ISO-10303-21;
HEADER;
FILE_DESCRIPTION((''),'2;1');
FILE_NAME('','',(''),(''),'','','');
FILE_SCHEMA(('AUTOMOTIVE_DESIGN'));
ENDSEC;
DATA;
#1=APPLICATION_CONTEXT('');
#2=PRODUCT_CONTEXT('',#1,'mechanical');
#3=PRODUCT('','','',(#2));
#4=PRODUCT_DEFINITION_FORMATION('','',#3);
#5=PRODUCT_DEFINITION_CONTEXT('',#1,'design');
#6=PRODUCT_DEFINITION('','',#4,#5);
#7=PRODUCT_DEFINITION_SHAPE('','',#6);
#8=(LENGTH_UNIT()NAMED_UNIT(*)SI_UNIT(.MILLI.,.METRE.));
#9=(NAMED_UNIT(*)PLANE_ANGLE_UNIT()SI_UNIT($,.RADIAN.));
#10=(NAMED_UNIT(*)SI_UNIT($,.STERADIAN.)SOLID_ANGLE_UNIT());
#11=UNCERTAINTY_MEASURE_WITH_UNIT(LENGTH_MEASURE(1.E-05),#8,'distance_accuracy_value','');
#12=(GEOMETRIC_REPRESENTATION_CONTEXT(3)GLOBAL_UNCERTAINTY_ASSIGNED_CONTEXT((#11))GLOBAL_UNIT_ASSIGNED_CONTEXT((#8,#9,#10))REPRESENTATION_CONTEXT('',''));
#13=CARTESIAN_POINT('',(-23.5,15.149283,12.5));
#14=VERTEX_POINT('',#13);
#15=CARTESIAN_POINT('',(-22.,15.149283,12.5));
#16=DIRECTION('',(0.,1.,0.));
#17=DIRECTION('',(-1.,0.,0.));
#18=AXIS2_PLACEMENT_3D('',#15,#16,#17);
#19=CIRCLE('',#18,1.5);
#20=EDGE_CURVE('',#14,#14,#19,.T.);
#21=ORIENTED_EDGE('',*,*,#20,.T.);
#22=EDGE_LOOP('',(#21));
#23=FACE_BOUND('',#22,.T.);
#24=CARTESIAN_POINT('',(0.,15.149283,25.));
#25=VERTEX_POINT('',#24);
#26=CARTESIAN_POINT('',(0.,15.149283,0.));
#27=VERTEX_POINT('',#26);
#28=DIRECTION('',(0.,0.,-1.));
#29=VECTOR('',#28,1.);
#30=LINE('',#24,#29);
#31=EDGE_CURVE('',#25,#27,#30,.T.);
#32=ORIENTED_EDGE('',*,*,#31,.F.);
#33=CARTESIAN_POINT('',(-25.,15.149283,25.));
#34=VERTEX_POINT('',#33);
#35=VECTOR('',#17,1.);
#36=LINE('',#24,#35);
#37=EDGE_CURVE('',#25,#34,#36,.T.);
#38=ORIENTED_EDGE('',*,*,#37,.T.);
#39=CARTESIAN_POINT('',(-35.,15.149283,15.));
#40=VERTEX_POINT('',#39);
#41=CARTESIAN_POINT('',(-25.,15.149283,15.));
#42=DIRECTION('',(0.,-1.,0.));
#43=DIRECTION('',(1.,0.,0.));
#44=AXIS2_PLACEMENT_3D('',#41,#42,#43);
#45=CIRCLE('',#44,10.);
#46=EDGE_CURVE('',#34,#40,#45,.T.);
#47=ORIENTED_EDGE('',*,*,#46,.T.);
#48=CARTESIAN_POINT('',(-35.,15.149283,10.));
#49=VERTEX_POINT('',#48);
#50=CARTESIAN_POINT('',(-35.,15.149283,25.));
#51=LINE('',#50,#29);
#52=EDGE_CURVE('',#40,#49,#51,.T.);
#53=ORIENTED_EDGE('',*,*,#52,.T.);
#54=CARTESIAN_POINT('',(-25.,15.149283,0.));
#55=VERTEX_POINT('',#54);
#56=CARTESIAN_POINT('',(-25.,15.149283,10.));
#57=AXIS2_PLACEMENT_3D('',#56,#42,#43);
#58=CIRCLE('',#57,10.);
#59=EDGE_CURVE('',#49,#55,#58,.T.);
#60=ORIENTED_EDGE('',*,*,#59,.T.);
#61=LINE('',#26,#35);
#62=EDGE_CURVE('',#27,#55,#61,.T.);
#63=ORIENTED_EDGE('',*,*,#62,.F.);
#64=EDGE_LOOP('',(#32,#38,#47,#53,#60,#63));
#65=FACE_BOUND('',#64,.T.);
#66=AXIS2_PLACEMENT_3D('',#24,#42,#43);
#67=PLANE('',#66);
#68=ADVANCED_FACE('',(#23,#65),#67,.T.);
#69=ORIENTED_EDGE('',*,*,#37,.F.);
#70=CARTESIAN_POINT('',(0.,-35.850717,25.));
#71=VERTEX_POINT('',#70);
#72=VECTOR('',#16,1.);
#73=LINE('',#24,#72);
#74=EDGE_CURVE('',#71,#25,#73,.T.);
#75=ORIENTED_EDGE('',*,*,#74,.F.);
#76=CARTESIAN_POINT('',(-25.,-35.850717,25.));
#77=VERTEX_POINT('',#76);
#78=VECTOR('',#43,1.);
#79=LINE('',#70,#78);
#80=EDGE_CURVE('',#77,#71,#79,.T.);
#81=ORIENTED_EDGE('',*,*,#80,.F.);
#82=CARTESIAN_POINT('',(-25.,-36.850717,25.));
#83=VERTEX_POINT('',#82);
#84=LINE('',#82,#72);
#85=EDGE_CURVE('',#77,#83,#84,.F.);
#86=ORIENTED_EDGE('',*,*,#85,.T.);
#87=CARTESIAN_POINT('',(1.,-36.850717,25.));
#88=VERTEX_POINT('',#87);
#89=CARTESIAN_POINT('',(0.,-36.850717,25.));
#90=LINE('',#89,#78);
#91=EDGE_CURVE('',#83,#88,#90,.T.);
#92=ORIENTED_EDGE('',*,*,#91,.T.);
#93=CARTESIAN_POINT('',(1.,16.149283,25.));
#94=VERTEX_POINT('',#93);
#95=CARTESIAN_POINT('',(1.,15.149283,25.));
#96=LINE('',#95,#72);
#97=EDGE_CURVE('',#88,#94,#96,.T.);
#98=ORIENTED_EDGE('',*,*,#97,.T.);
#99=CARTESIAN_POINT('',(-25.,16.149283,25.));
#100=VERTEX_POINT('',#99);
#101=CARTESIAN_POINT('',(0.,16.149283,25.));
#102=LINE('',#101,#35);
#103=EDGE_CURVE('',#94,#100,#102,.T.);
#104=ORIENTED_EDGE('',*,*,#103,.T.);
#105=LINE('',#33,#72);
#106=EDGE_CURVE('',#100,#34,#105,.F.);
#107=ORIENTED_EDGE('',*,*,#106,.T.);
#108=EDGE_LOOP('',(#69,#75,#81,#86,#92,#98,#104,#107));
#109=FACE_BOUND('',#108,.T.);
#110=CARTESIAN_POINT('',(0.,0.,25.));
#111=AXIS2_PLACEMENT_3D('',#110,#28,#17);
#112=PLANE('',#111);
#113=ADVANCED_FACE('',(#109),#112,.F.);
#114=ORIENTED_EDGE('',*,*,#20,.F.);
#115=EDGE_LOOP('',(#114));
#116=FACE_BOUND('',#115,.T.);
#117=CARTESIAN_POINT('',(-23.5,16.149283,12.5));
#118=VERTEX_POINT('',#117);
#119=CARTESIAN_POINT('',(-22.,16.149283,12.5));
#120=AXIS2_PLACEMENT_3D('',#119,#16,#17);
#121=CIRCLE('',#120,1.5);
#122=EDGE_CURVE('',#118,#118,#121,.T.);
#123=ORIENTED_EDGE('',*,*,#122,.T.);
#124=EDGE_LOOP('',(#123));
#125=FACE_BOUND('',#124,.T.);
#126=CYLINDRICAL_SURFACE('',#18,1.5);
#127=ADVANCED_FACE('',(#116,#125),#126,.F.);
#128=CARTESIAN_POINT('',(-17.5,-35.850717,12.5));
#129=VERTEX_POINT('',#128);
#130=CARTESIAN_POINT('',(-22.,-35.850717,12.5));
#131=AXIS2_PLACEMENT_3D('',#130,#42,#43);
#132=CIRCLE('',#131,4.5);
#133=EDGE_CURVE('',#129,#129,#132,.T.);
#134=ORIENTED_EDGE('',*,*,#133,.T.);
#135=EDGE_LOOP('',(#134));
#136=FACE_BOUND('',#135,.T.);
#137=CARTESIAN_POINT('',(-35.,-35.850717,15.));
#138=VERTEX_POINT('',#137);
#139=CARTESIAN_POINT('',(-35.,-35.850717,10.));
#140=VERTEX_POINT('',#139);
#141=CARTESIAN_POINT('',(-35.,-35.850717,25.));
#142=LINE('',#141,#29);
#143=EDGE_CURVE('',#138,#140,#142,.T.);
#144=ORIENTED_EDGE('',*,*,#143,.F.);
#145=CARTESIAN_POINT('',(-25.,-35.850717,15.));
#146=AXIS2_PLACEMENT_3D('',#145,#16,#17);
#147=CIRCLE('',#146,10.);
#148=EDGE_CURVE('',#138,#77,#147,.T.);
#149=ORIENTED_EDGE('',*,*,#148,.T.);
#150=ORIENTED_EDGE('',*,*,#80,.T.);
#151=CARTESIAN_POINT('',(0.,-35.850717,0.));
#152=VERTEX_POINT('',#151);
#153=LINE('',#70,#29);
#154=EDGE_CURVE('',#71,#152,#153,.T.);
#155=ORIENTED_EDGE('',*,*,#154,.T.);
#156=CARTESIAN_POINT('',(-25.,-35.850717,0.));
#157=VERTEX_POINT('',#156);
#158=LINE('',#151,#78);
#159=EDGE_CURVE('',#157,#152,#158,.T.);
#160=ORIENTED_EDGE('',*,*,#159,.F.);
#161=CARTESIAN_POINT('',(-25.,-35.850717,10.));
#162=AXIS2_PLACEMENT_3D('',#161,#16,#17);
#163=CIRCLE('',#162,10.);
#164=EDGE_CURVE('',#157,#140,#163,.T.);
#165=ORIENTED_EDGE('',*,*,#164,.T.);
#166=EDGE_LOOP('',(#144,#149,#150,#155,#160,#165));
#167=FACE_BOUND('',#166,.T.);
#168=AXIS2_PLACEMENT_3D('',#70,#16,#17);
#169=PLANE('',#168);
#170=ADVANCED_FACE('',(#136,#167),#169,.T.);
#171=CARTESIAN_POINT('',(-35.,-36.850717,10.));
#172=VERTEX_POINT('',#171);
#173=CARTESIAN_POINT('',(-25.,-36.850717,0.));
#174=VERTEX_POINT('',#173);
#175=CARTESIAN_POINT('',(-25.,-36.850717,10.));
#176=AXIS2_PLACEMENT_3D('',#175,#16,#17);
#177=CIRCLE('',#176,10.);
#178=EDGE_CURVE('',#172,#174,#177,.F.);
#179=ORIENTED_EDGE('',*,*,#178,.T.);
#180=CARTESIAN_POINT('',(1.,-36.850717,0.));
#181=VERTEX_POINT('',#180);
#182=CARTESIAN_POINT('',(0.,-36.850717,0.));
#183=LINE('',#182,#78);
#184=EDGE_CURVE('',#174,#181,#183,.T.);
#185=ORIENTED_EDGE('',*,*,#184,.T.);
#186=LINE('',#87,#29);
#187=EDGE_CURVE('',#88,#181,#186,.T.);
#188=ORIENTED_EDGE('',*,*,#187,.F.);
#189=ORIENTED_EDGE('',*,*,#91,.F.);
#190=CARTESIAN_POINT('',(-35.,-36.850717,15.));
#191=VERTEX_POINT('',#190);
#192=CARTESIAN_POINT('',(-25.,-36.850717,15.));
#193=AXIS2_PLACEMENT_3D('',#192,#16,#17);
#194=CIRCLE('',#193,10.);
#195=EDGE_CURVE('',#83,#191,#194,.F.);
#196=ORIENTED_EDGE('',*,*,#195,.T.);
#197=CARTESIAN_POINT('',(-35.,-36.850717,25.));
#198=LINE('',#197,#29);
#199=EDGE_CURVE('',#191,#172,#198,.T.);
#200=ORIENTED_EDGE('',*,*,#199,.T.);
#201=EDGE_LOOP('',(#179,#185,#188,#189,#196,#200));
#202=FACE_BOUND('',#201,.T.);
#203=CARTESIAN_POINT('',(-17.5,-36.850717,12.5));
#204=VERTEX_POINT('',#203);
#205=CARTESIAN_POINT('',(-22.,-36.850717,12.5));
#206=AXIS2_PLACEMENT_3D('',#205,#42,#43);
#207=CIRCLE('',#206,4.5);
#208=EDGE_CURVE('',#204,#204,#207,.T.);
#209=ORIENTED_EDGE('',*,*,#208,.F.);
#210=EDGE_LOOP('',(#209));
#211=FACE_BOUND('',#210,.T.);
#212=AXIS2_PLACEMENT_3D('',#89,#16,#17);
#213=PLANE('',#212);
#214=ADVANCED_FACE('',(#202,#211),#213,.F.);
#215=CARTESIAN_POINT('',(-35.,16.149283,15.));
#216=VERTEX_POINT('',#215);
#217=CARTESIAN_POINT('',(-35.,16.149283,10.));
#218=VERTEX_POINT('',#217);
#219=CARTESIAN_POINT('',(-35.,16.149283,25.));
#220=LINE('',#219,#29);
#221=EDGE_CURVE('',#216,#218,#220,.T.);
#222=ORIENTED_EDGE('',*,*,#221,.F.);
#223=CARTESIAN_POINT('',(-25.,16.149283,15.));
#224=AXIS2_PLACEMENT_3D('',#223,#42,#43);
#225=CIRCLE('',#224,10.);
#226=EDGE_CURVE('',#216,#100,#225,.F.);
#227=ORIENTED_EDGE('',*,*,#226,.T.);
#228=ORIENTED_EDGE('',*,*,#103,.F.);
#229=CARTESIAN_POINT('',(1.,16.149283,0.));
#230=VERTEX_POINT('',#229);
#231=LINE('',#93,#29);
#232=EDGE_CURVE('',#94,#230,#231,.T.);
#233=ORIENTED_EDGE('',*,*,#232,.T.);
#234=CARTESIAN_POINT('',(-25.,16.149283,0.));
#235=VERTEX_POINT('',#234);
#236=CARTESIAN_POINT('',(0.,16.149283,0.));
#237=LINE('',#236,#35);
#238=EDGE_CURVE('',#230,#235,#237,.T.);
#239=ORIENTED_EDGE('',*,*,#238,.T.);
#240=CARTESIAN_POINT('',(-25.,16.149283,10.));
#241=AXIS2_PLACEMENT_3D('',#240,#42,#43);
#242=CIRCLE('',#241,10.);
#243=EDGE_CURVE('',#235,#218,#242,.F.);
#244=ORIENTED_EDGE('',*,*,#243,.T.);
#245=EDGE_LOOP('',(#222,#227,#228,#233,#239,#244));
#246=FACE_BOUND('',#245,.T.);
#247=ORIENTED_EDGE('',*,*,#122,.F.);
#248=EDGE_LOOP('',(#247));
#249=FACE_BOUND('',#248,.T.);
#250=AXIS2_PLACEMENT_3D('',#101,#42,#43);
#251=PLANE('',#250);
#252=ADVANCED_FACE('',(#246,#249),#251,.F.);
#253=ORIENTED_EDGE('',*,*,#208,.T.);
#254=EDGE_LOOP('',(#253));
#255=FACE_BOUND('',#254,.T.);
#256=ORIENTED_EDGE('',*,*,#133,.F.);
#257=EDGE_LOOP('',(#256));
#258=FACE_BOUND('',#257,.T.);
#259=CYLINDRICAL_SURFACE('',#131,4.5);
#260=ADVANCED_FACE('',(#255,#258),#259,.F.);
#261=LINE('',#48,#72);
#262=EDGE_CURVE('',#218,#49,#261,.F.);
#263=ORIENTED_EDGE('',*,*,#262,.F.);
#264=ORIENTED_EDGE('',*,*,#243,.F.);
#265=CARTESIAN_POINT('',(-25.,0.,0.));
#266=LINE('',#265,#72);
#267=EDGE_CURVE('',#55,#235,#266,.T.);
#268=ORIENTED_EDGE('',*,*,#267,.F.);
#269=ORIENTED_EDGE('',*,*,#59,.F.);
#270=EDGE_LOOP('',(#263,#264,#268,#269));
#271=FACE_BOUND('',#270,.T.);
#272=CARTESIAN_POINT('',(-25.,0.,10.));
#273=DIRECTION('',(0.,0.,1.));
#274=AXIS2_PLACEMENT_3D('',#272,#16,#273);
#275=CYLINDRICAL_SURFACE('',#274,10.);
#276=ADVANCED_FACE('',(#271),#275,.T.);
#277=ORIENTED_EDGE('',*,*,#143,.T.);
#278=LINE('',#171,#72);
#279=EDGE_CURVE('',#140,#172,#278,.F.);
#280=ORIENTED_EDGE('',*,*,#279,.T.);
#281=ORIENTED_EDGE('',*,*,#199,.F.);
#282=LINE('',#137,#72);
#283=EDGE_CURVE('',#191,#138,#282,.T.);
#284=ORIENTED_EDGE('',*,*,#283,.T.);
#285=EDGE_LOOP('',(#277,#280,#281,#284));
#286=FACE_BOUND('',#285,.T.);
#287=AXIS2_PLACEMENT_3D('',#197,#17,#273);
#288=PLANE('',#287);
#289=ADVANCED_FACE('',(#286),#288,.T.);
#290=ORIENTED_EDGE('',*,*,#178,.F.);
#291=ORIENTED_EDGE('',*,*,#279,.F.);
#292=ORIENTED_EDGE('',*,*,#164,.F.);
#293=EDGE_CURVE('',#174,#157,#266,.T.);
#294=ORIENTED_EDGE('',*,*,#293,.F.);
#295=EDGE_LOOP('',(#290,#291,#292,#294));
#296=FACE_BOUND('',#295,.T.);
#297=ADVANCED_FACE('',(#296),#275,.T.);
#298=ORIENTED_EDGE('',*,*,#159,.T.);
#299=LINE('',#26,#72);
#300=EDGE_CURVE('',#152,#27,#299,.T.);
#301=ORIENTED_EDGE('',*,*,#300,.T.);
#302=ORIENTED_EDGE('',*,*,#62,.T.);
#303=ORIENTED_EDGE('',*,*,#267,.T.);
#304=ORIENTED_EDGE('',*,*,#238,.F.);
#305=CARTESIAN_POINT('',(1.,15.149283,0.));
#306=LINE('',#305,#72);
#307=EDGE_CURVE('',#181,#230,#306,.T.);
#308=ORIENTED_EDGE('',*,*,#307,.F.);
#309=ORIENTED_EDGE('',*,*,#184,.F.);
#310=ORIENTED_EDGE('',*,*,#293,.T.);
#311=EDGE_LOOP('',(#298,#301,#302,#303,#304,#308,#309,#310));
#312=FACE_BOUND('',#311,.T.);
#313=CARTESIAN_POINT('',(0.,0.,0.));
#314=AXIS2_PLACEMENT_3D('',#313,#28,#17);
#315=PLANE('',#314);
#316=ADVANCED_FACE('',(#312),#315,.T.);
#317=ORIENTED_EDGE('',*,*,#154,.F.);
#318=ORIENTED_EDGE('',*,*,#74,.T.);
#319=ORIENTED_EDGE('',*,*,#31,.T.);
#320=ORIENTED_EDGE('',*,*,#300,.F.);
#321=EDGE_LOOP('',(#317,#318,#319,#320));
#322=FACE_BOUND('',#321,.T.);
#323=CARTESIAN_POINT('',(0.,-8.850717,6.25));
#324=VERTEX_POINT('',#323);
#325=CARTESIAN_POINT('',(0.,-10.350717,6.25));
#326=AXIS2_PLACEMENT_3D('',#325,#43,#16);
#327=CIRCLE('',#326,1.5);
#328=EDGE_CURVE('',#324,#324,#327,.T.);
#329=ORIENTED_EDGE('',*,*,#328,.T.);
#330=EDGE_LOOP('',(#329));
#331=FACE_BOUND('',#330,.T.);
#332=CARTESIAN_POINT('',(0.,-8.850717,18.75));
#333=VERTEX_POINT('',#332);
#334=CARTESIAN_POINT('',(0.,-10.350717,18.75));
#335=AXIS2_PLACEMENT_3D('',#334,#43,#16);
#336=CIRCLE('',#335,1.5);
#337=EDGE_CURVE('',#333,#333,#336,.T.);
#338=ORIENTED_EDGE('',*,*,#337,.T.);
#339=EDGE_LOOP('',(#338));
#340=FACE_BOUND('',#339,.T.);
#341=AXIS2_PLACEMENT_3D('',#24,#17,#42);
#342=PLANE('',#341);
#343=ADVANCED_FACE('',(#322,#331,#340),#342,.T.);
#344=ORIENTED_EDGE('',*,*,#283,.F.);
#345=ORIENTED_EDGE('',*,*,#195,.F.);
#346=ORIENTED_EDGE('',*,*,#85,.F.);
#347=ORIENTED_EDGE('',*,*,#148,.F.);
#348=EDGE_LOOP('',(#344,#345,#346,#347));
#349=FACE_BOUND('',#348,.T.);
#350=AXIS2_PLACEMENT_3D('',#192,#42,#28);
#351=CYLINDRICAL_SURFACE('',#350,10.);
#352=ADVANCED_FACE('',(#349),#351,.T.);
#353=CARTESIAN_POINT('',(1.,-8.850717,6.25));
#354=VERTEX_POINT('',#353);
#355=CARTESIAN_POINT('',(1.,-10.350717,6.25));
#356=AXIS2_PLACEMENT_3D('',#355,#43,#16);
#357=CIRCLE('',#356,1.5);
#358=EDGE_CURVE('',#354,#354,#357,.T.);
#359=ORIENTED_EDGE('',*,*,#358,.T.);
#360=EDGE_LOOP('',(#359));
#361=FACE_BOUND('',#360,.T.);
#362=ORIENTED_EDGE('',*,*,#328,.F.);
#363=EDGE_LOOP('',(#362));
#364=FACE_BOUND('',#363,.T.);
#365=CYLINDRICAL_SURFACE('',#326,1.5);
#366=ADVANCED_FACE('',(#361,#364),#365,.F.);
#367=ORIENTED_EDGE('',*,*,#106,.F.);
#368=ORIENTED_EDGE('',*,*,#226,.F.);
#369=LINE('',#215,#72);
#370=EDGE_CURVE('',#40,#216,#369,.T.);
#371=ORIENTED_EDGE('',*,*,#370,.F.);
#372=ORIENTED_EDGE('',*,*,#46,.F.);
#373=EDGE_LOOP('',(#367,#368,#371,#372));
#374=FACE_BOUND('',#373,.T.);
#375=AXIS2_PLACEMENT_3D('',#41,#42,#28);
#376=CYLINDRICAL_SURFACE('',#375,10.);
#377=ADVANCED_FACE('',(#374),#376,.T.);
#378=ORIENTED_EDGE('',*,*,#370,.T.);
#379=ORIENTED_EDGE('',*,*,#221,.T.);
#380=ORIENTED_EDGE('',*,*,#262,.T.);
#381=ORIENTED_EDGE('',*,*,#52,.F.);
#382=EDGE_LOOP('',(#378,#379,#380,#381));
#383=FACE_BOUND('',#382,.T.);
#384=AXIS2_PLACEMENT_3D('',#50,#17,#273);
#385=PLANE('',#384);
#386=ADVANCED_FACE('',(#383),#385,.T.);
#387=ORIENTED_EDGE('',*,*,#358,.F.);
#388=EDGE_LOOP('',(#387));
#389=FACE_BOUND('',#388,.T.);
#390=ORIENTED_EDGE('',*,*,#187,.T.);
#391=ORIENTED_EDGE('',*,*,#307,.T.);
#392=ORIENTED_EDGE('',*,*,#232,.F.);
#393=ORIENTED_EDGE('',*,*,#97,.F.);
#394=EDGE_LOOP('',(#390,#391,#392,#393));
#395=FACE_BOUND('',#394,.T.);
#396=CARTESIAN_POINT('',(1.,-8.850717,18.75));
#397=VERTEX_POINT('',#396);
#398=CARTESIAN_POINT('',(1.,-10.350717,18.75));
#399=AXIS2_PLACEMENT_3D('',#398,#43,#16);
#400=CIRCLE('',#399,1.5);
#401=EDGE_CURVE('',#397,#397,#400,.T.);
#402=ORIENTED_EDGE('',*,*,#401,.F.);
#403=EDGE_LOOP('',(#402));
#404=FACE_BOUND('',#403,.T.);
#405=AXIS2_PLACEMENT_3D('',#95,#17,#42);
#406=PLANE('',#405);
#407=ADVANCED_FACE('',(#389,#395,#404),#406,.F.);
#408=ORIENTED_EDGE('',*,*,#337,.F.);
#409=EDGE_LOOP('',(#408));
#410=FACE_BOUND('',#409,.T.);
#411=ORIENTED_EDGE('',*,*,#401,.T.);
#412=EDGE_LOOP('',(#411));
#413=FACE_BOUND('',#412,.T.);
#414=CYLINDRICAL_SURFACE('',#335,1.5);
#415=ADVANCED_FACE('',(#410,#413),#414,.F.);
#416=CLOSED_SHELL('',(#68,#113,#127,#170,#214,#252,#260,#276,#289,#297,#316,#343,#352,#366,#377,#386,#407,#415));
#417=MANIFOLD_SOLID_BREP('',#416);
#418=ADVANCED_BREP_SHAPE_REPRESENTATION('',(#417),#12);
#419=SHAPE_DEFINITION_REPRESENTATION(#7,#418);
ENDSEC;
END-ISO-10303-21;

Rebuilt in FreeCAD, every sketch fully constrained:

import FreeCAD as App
import Part
import Sketcher
Q = App.Units.Quantity


def edges_at(feature, points):
    """Names of the edges that pass closest to the given points."""
    edges = feature.Shape.Edges
    near = lambda p: min(range(len(edges)), key=lambda i: edges[i].distToShape(Part.Vertex(*p))[0])
    return sorted({f"Edge{near(p) + 1}" for p in points})


def add_polygon(sketch, points):
    """Adds a closed chain of lines whose ends are joined by coincident constraints."""
    first, n = sketch.GeometryCount, len(points)
    for a, b in zip(points, points[1:] + points[:1]):
        sketch.addGeometry(Part.LineSegment(App.Vector(*a, 0), App.Vector(*b, 0)), False)
    for i in range(n):
        sketch.addConstraint(Sketcher.Constraint("Coincident", first + i, 2, first + (i + 1) % n, 1))

doc = App.newDocument("Part")
body = doc.addObject("PartDesign::Body", "Body")

# Sketch on XY plane
sketch1 = doc.addObject("Sketcher::SketchObject", "Sketch")
body.addObject(sketch1)
sketch1.AttachmentSupport = (doc.XY_Plane, [""])
sketch1.MapMode = "FlatFace"
add_polygon(sketch1, [(-35, 15.149283), (0, 15.149283), (0, -35.850717), (-35, -35.850717), (-35, -36.850717), (1, -36.850717), (1, 16.149283), (-35, 16.149283)])  # lines 0-7
sketch1.addConstraint([
    Sketcher.Constraint("Horizontal", 0),
    Sketcher.Constraint("Vertical", 1),
    Sketcher.Constraint("Horizontal", 2),
    Sketcher.Constraint("Vertical", 3),
    Sketcher.Constraint("Horizontal", 4),
    Sketcher.Constraint("Vertical", 5),
    Sketcher.Constraint("Horizontal", 6),
    Sketcher.Constraint("Vertical", 7),
    Sketcher.Constraint("PointOnObject", 0, 2, -2),
    Sketcher.Constraint("Vertical", 3, 2, 6, 2),
    Sketcher.Constraint("Equal", 3, 7),
    Sketcher.Constraint("DistanceX", 0, 1, 0, 2, Q("35 mm")),
    Sketcher.Constraint("DistanceX", 4, 1, 4, 2, Q("36 mm")),
    Sketcher.Constraint("DistanceY", 1, 2, 1, 1, Q("51 mm")),
    Sketcher.Constraint("DistanceY", 3, 2, 3, 1, Q("1 mm")),
    Sketcher.Constraint("DistanceY", -1, 1, 0, 2, Q("15.149283 mm")),
])
pad1 = doc.addObject("PartDesign::Pad", "Pad")
body.addObject(pad1)
pad1.Profile = sketch1
pad1.Length = 25

# Sketch on XZ plane
sketch2 = doc.addObject("Sketcher::SketchObject", "Sketch001")
body.addObject(sketch2)
sketch2.AttachmentSupport = (doc.XZ_Plane, [""])
sketch2.MapMode = "FlatFace"
sketch2.AttachmentOffset = App.Placement(App.Vector(0, 0, -16.149283), App.Rotation())
sketch2.addGeometry(Part.Circle(App.Vector(-22, 12.5, 0), App.Vector(0, 0, 1), 1.5), False)
sketch2.addConstraint([
    Sketcher.Constraint("Diameter", 0, Q("3 mm")),
    Sketcher.Constraint("DistanceX", 0, 3, -1, 1, Q("22 mm")),
    Sketcher.Constraint("DistanceY", -1, 1, 0, 3, Q("12.5 mm")),
])
pocket1 = doc.addObject("PartDesign::Pocket", "Pocket")
body.addObject(pocket1)
pocket1.Profile = sketch2
pocket1.Length = 1
pocket1.Reversed = True

# Sketch on XZ plane
sketch3 = doc.addObject("Sketcher::SketchObject", "Sketch002")
body.addObject(sketch3)
sketch3.AttachmentSupport = (doc.XZ_Plane, [""])
sketch3.MapMode = "FlatFace"
sketch3.AttachmentOffset = App.Placement(App.Vector(0, 0, 36.850717), App.Rotation())
sketch3.addGeometry(Part.Circle(App.Vector(-22, 12.5, 0), App.Vector(0, 0, 1), 4.5), False)
sketch3.addConstraint([
    Sketcher.Constraint("Diameter", 0, Q("9 mm")),
    Sketcher.Constraint("DistanceX", 0, 3, -1, 1, Q("22 mm")),
    Sketcher.Constraint("DistanceY", -1, 1, 0, 3, Q("12.5 mm")),
])
pocket2 = doc.addObject("PartDesign::Pocket", "Pocket001")
body.addObject(pocket2)
pocket2.Profile = sketch3
pocket2.Length = 1

# Sketch on YZ plane
sketch4 = doc.addObject("Sketcher::SketchObject", "Sketch003")
body.addObject(sketch4)
sketch4.AttachmentSupport = (doc.YZ_Plane, [""])
sketch4.MapMode = "FlatFace"
sketch4.AttachmentOffset = App.Placement(App.Vector(0, 0, 1), App.Rotation())
sketch4.addGeometry([
    Part.Circle(App.Vector(-10.350717, 6.25, 0), App.Vector(0, 0, 1), 1.5),
    Part.Circle(App.Vector(-10.350717, 18.75, 0), App.Vector(0, 0, 1), 1.5),
], False)
sketch4.addConstraint([
    Sketcher.Constraint("Equal", 0, 1),
    Sketcher.Constraint("Vertical", 0, 3, 1, 3),
    Sketcher.Constraint("Diameter", 0, Q("3 mm")),
    Sketcher.Constraint("DistanceY", 0, 3, 1, 3, Q("12.5 mm")),
    Sketcher.Constraint("DistanceY", -1, 1, 0, 3, Q("6.25 mm")),
    Sketcher.Constraint("DistanceX", 0, 3, -1, 1, Q("10.350717 mm")),
])
pocket3 = doc.addObject("PartDesign::Pocket", "Pocket002")
body.addObject(pocket3)
pocket3.Profile = sketch4
pocket3.Length = 1
doc.recompute()

fillet = doc.addObject("PartDesign::Fillet", "Fillet")
body.addObject(fillet)
fillet.Base = (pocket3, edges_at(pocket3, [
    (-35, -36.351, 25),
    (-35, 15.649, 25),
    (-35, -36.351, 0),
    (-35, 15.649, 0),
]))
fillet.Radius = 10

doc.recompute()
